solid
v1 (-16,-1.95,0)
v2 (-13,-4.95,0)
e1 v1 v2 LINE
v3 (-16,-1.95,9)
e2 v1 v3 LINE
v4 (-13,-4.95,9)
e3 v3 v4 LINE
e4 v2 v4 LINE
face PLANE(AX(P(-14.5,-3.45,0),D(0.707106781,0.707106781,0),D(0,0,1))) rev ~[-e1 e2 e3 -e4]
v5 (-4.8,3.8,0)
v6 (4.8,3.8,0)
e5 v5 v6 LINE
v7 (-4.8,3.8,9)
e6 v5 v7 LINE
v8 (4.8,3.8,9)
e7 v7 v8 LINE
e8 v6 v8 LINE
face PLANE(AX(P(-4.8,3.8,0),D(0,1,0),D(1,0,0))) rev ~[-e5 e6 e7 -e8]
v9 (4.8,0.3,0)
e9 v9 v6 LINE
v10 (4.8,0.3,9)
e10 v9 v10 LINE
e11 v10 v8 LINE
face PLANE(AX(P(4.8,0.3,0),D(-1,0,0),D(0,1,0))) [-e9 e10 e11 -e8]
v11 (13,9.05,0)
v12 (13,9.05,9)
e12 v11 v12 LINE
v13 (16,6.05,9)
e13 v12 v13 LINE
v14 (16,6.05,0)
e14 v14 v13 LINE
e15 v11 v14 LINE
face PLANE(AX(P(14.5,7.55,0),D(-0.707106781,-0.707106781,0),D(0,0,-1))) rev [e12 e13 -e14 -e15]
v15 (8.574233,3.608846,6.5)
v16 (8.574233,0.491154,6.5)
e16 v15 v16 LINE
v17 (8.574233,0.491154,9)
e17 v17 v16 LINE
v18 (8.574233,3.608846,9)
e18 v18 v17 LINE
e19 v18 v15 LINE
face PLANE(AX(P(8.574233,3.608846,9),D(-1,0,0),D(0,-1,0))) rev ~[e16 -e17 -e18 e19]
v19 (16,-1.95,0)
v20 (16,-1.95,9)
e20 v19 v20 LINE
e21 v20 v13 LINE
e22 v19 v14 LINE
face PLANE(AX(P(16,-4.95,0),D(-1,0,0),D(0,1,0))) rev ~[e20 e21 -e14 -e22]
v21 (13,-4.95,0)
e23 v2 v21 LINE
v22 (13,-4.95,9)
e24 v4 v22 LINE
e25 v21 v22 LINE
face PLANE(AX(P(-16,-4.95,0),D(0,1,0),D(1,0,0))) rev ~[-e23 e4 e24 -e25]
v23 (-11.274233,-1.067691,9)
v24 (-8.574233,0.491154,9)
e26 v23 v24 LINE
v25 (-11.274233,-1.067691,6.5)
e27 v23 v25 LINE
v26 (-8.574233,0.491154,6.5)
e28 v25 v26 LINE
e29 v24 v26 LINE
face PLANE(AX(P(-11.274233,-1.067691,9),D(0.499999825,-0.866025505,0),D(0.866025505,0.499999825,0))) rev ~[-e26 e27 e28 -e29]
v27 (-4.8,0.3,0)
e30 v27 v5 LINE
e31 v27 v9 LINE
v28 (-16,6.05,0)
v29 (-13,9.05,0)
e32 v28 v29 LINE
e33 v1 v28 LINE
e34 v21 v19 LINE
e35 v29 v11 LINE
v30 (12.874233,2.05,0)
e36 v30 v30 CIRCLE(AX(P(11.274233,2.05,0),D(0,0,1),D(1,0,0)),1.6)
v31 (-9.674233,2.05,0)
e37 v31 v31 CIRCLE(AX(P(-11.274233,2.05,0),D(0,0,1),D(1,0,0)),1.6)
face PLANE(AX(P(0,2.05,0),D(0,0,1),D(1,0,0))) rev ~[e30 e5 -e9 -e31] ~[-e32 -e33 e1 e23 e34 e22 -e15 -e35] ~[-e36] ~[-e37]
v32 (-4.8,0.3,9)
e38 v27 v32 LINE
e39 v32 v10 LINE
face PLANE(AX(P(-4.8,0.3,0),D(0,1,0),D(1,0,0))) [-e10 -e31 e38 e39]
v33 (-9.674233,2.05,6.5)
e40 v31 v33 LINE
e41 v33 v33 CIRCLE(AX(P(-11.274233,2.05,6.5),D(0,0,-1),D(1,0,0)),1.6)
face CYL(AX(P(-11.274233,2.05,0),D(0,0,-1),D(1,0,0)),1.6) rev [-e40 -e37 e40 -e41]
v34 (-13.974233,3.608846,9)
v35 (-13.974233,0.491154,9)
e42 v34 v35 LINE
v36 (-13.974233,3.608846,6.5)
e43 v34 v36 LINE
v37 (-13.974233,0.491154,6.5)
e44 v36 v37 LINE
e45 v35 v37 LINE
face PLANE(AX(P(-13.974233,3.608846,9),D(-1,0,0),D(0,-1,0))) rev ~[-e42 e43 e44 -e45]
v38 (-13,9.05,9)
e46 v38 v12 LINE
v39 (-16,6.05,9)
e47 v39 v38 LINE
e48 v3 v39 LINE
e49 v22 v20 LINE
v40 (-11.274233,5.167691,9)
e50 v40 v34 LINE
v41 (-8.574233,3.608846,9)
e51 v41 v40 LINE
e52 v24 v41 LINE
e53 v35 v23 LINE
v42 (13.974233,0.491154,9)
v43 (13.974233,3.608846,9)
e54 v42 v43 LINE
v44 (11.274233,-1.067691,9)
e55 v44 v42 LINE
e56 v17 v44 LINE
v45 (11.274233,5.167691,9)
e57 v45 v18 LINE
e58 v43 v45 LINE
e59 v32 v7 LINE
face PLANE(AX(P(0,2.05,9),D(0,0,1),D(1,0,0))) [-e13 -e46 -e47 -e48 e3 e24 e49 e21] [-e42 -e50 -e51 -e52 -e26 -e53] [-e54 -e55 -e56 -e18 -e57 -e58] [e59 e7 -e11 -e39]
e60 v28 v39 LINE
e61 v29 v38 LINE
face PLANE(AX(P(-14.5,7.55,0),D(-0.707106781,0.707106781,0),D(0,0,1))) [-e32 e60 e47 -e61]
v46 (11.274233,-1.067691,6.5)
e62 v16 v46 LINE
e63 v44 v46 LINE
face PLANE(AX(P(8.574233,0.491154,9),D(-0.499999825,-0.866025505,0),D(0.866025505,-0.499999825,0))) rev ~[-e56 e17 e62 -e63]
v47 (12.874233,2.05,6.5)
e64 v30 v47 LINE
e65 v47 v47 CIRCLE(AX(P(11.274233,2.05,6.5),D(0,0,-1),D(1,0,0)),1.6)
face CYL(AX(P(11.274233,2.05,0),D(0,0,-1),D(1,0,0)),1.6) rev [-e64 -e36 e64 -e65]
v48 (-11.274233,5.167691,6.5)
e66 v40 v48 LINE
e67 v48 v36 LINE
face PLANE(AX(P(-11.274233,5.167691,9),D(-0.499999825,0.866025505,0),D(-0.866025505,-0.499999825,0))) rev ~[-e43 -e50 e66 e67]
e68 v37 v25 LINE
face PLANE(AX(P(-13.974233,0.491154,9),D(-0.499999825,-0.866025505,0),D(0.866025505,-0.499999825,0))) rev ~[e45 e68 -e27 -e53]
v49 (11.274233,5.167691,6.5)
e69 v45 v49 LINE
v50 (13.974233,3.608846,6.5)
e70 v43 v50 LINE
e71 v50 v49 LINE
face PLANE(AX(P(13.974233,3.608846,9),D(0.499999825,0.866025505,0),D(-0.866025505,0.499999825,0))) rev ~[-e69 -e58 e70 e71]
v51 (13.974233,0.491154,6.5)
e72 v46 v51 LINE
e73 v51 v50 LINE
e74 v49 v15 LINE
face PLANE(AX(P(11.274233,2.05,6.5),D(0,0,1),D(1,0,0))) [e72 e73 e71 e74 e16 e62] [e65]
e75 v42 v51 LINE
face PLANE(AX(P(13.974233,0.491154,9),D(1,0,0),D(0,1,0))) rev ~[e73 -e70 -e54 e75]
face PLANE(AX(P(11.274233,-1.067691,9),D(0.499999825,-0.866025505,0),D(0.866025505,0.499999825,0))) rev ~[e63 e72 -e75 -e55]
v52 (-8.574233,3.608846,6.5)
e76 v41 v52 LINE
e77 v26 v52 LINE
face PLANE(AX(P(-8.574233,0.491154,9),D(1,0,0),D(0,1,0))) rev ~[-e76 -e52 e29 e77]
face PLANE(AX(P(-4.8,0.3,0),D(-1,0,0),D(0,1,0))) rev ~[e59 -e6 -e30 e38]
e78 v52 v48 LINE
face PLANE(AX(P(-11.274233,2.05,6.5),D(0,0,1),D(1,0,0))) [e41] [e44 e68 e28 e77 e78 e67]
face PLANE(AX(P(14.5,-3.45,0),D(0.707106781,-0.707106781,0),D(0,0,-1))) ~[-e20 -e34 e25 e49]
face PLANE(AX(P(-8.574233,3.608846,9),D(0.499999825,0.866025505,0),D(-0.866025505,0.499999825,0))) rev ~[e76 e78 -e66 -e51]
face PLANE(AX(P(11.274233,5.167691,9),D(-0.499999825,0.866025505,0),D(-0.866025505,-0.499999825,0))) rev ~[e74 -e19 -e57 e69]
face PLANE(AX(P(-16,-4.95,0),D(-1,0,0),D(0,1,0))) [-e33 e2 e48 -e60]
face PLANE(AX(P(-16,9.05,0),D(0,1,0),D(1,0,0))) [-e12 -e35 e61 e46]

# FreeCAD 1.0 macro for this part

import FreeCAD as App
import Part
import Sketcher
from FreeCAD import Vector
Q = App.Units.Quantity


def edges_at(feature, points):
    """Names of the edges that pass closest to the given points."""
    edges = feature.Shape.Edges
    near = lambda p: min(range(len(edges)), key=lambda i: edges[i].distToShape(Part.Vertex(*p))[0])
    return sorted({f"Edge{near(p) + 1}" for p in points})

doc = App.newDocument("Part")
body = doc.addObject("PartDesign::Body", "Body")

# Sketch on XY plane
sketch1 = doc.addObject("Sketcher::SketchObject", "Sketch")
body.addObject(sketch1)
sketch1.AttachmentSupport = (doc.XY_Plane, [""])
sketch1.MapMode = "FlatFace"
sketch1.addGeometry([
    Part.LineSegment(Vector(-16, 9.1, 0), Vector(-16, -5, 0)),  # 0
    Part.LineSegment(Vector(-16, -5, 0), Vector(16, -5, 0)),  # 1
    Part.LineSegment(Vector(16, -5, 0), Vector(16, 9.1, 0)),  # 2
    Part.LineSegment(Vector(16, 9.1, 0), Vector(-16, 9.1, 0)),  # 3
    Part.Circle(Vector(-11.3, 2, 0), Vector(0, 0, 1), 1.6),  # 4
    Part.LineSegment(Vector(4.8, 0.3, 0), Vector(-4.8, 0.3, 0)),  # 5
    Part.LineSegment(Vector(-4.8, 0.3, 0), Vector(-4.8, 3.8, 0)),  # 6
    Part.LineSegment(Vector(-4.8, 3.8, 0), Vector(4.8, 3.8, 0)),  # 7
    Part.LineSegment(Vector(4.8, 3.8, 0), Vector(4.8, 0.3, 0)),  # 8
    Part.Circle(Vector(11.3, 2, 0), Vector(0, 0, 1), 1.6),  # 9
], False)
sketch1.addConstraint([
    Sketcher.Constraint("Coincident", 0, 2, 1, 1),
    Sketcher.Constraint("Coincident", 1, 2, 2, 1),
    Sketcher.Constraint("Coincident", 2, 2, 3, 1),
    Sketcher.Constraint("Coincident", 3, 2, 0, 1),
    Sketcher.Constraint("Coincident", 5, 2, 6, 1),
    Sketcher.Constraint("Coincident", 6, 2, 7, 1),
    Sketcher.Constraint("Coincident", 7, 2, 8, 1),
    Sketcher.Constraint("Coincident", 8, 2, 5, 1),
    Sketcher.Constraint("Vertical", 0),
    Sketcher.Constraint("Horizontal", 1),
    Sketcher.Constraint("Vertical", 2),
    Sketcher.Constraint("Horizontal", 3),
    Sketcher.Constraint("Horizontal", 5),
    Sketcher.Constraint("Vertical", 6),
    Sketcher.Constraint("Horizontal", 7),
    Sketcher.Constraint("Vertical", 8),
    Sketcher.Constraint("Equal", 4, 9),
    Sketcher.Constraint("Symmetric", 4, 3, 9, 3, -2),
    Sketcher.Constraint("Diameter", 4, Q("3.2 mm")),
    Sketcher.Constraint("DistanceX", 1, 1, 1, 2, Q("32 mm")),
    Sketcher.Constraint("DistanceY", 0, 2, 0, 1, Q("14 mm")),
    Sketcher.Constraint("DistanceX", 5, 2, 5, 1, Q("9.6 mm")),
    Sketcher.Constraint("DistanceY", 6, 1, 6, 2, Q("3.5 mm")),
    Sketcher.Constraint("DistanceX", 0, 2, -1, 1, Q("16 mm")),
    Sketcher.Constraint("DistanceY", 0, 2, 4, 3, Q("7 mm")),
    Sketcher.Constraint("DistanceX", 5, 2, -1, 1, Q("4.8 mm")),
    Sketcher.Constraint("DistanceY", -1, 1, 5, 2, Q("0.3 mm")),
    Sketcher.Constraint("DistanceY", -1, 1, 4, 3, Q("2.05 mm")),
    Sketcher.Constraint("DistanceX", 4, 3, -1, 1, Q("11.274233 mm")),
])
pad1 = doc.addObject("PartDesign::Pad", "Pad")
body.addObject(pad1)
pad1.Profile = sketch1
pad1.Length = 9
doc.recompute()

chamfer = doc.addObject("PartDesign::Chamfer", "Chamfer")
body.addObject(chamfer)
chamfer.Base = (pad1, edges_at(pad1, [
    (-16, -4.95, 4.5),
    (16, -4.95, 4.5),
    (16, 9.05, 4.5),
    (-16, 9.05, 4.5),
]))
chamfer.Size = 3

# Sketch on XY plane
sketch2 = doc.addObject("Sketcher::SketchObject", "Sketch001")
body.addObject(sketch2)
sketch2.AttachmentSupport = (doc.XY_Plane, [""])
sketch2.MapMode = "FlatFace"
sketch2.AttachmentOffset = App.Placement(Vector(0, 0, 9), App.Rotation())
sketch2.addGeometry([
    Part.LineSegment(Vector(-8.6, 0.5, 0), Vector(-8.6, 3.6, 0)),  # 0
    Part.LineSegment(Vector(-8.6, 3.6, 0), Vector(-11.3, 5.2, 0)),  # 1
    Part.LineSegment(Vector(-11.3, 5.2, 0), Vector(-14, 3.6, 0)),  # 2
    Part.LineSegment(Vector(-14, 3.6, 0), Vector(-14, 0.5, 0)),  # 3
    Part.LineSegment(Vector(-14, 0.5, 0), Vector(-11.3, -1.1, 0)),  # 4
    Part.LineSegment(Vector(-11.3, -1.1, 0), Vector(-8.6, 0.5, 0)),  # 5
    Part.LineSegment(Vector(14, 0.5, 0), Vector(14, 3.6, 0)),  # 6
    Part.LineSegment(Vector(14, 3.6, 0), Vector(11.3, 5.2, 0)),  # 7
    Part.LineSegment(Vector(11.3, 5.2, 0), Vector(8.6, 3.6, 0)),  # 8
    Part.LineSegment(Vector(8.6, 3.6, 0), Vector(8.6, 0.5, 0)),  # 9
    Part.LineSegment(Vector(8.6, 0.5, 0), Vector(11.3, -1.1, 0)),  # 10
    Part.LineSegment(Vector(11.3, -1.1, 0), Vector(14, 0.5, 0)),  # 11
], False)
sketch2.addConstraint([
    Sketcher.Constraint("Coincident", 0, 2, 1, 1),
    Sketcher.Constraint("Coincident", 1, 2, 2, 1),
    Sketcher.Constraint("Coincident", 2, 2, 3, 1),
    Sketcher.Constraint("Coincident", 3, 2, 4, 1),
    Sketcher.Constraint("Coincident", 4, 2, 5, 1),
    Sketcher.Constraint("Coincident", 5, 2, 0, 1),
    Sketcher.Constraint("Coincident", 6, 2, 7, 1),
    Sketcher.Constraint("Coincident", 7, 2, 8, 1),
    Sketcher.Constraint("Coincident", 8, 2, 9, 1),
    Sketcher.Constraint("Coincident", 9, 2, 10, 1),
    Sketcher.Constraint("Coincident", 10, 2, 11, 1),
    Sketcher.Constraint("Coincident", 11, 2, 6, 1),
    Sketcher.Constraint("Vertical", 0),
    Sketcher.Constraint("Vertical", 3),
    Sketcher.Constraint("Vertical", 6),
    Sketcher.Constraint("Vertical", 9),
    Sketcher.Constraint("Symmetric", 2, 2, 6, 2, -2),
    Sketcher.Constraint("Symmetric", 1, 2, 7, 2, -2),
    Sketcher.Constraint("Symmetric", 0, 2, 8, 2, -2),
    Sketcher.Constraint("Symmetric", 4, 2, 10, 2, -2),
    Sketcher.Constraint("Parallel", 1, 4),
    Sketcher.Constraint("Parallel", 2, 5),
    Sketcher.Constraint("Parallel", 4, 7),
    Sketcher.Constraint("Parallel", 7, 10),
    Sketcher.Constraint("Parallel", 8, 11),
    Sketcher.Constraint("Horizontal", 0, 2, 2, 2),
    Sketcher.Constraint("Horizontal", 3, 2, 5, 2),
    Sketcher.Constraint("Angle", 1, Q("150.000012 deg")),
    Sketcher.Constraint("DistanceX", 1, 2, 0, 2, Q("2.7 mm")),
    Sketcher.Constraint("DistanceY", 0, 1, 0, 2, Q("3.117692 mm")),
    Sketcher.Constraint("DistanceY", -1, 1, 1, 2, Q("5.167691 mm")),
    Sketcher.Constraint("DistanceX", 0, 2, -1, 1, Q("8.574233 mm")),
])
pocket1 = doc.addObject("PartDesign::Pocket", "Pocket")
body.addObject(pocket1)
pocket1.Profile = sketch2
pocket1.Length = 2.5

doc.recompute()
